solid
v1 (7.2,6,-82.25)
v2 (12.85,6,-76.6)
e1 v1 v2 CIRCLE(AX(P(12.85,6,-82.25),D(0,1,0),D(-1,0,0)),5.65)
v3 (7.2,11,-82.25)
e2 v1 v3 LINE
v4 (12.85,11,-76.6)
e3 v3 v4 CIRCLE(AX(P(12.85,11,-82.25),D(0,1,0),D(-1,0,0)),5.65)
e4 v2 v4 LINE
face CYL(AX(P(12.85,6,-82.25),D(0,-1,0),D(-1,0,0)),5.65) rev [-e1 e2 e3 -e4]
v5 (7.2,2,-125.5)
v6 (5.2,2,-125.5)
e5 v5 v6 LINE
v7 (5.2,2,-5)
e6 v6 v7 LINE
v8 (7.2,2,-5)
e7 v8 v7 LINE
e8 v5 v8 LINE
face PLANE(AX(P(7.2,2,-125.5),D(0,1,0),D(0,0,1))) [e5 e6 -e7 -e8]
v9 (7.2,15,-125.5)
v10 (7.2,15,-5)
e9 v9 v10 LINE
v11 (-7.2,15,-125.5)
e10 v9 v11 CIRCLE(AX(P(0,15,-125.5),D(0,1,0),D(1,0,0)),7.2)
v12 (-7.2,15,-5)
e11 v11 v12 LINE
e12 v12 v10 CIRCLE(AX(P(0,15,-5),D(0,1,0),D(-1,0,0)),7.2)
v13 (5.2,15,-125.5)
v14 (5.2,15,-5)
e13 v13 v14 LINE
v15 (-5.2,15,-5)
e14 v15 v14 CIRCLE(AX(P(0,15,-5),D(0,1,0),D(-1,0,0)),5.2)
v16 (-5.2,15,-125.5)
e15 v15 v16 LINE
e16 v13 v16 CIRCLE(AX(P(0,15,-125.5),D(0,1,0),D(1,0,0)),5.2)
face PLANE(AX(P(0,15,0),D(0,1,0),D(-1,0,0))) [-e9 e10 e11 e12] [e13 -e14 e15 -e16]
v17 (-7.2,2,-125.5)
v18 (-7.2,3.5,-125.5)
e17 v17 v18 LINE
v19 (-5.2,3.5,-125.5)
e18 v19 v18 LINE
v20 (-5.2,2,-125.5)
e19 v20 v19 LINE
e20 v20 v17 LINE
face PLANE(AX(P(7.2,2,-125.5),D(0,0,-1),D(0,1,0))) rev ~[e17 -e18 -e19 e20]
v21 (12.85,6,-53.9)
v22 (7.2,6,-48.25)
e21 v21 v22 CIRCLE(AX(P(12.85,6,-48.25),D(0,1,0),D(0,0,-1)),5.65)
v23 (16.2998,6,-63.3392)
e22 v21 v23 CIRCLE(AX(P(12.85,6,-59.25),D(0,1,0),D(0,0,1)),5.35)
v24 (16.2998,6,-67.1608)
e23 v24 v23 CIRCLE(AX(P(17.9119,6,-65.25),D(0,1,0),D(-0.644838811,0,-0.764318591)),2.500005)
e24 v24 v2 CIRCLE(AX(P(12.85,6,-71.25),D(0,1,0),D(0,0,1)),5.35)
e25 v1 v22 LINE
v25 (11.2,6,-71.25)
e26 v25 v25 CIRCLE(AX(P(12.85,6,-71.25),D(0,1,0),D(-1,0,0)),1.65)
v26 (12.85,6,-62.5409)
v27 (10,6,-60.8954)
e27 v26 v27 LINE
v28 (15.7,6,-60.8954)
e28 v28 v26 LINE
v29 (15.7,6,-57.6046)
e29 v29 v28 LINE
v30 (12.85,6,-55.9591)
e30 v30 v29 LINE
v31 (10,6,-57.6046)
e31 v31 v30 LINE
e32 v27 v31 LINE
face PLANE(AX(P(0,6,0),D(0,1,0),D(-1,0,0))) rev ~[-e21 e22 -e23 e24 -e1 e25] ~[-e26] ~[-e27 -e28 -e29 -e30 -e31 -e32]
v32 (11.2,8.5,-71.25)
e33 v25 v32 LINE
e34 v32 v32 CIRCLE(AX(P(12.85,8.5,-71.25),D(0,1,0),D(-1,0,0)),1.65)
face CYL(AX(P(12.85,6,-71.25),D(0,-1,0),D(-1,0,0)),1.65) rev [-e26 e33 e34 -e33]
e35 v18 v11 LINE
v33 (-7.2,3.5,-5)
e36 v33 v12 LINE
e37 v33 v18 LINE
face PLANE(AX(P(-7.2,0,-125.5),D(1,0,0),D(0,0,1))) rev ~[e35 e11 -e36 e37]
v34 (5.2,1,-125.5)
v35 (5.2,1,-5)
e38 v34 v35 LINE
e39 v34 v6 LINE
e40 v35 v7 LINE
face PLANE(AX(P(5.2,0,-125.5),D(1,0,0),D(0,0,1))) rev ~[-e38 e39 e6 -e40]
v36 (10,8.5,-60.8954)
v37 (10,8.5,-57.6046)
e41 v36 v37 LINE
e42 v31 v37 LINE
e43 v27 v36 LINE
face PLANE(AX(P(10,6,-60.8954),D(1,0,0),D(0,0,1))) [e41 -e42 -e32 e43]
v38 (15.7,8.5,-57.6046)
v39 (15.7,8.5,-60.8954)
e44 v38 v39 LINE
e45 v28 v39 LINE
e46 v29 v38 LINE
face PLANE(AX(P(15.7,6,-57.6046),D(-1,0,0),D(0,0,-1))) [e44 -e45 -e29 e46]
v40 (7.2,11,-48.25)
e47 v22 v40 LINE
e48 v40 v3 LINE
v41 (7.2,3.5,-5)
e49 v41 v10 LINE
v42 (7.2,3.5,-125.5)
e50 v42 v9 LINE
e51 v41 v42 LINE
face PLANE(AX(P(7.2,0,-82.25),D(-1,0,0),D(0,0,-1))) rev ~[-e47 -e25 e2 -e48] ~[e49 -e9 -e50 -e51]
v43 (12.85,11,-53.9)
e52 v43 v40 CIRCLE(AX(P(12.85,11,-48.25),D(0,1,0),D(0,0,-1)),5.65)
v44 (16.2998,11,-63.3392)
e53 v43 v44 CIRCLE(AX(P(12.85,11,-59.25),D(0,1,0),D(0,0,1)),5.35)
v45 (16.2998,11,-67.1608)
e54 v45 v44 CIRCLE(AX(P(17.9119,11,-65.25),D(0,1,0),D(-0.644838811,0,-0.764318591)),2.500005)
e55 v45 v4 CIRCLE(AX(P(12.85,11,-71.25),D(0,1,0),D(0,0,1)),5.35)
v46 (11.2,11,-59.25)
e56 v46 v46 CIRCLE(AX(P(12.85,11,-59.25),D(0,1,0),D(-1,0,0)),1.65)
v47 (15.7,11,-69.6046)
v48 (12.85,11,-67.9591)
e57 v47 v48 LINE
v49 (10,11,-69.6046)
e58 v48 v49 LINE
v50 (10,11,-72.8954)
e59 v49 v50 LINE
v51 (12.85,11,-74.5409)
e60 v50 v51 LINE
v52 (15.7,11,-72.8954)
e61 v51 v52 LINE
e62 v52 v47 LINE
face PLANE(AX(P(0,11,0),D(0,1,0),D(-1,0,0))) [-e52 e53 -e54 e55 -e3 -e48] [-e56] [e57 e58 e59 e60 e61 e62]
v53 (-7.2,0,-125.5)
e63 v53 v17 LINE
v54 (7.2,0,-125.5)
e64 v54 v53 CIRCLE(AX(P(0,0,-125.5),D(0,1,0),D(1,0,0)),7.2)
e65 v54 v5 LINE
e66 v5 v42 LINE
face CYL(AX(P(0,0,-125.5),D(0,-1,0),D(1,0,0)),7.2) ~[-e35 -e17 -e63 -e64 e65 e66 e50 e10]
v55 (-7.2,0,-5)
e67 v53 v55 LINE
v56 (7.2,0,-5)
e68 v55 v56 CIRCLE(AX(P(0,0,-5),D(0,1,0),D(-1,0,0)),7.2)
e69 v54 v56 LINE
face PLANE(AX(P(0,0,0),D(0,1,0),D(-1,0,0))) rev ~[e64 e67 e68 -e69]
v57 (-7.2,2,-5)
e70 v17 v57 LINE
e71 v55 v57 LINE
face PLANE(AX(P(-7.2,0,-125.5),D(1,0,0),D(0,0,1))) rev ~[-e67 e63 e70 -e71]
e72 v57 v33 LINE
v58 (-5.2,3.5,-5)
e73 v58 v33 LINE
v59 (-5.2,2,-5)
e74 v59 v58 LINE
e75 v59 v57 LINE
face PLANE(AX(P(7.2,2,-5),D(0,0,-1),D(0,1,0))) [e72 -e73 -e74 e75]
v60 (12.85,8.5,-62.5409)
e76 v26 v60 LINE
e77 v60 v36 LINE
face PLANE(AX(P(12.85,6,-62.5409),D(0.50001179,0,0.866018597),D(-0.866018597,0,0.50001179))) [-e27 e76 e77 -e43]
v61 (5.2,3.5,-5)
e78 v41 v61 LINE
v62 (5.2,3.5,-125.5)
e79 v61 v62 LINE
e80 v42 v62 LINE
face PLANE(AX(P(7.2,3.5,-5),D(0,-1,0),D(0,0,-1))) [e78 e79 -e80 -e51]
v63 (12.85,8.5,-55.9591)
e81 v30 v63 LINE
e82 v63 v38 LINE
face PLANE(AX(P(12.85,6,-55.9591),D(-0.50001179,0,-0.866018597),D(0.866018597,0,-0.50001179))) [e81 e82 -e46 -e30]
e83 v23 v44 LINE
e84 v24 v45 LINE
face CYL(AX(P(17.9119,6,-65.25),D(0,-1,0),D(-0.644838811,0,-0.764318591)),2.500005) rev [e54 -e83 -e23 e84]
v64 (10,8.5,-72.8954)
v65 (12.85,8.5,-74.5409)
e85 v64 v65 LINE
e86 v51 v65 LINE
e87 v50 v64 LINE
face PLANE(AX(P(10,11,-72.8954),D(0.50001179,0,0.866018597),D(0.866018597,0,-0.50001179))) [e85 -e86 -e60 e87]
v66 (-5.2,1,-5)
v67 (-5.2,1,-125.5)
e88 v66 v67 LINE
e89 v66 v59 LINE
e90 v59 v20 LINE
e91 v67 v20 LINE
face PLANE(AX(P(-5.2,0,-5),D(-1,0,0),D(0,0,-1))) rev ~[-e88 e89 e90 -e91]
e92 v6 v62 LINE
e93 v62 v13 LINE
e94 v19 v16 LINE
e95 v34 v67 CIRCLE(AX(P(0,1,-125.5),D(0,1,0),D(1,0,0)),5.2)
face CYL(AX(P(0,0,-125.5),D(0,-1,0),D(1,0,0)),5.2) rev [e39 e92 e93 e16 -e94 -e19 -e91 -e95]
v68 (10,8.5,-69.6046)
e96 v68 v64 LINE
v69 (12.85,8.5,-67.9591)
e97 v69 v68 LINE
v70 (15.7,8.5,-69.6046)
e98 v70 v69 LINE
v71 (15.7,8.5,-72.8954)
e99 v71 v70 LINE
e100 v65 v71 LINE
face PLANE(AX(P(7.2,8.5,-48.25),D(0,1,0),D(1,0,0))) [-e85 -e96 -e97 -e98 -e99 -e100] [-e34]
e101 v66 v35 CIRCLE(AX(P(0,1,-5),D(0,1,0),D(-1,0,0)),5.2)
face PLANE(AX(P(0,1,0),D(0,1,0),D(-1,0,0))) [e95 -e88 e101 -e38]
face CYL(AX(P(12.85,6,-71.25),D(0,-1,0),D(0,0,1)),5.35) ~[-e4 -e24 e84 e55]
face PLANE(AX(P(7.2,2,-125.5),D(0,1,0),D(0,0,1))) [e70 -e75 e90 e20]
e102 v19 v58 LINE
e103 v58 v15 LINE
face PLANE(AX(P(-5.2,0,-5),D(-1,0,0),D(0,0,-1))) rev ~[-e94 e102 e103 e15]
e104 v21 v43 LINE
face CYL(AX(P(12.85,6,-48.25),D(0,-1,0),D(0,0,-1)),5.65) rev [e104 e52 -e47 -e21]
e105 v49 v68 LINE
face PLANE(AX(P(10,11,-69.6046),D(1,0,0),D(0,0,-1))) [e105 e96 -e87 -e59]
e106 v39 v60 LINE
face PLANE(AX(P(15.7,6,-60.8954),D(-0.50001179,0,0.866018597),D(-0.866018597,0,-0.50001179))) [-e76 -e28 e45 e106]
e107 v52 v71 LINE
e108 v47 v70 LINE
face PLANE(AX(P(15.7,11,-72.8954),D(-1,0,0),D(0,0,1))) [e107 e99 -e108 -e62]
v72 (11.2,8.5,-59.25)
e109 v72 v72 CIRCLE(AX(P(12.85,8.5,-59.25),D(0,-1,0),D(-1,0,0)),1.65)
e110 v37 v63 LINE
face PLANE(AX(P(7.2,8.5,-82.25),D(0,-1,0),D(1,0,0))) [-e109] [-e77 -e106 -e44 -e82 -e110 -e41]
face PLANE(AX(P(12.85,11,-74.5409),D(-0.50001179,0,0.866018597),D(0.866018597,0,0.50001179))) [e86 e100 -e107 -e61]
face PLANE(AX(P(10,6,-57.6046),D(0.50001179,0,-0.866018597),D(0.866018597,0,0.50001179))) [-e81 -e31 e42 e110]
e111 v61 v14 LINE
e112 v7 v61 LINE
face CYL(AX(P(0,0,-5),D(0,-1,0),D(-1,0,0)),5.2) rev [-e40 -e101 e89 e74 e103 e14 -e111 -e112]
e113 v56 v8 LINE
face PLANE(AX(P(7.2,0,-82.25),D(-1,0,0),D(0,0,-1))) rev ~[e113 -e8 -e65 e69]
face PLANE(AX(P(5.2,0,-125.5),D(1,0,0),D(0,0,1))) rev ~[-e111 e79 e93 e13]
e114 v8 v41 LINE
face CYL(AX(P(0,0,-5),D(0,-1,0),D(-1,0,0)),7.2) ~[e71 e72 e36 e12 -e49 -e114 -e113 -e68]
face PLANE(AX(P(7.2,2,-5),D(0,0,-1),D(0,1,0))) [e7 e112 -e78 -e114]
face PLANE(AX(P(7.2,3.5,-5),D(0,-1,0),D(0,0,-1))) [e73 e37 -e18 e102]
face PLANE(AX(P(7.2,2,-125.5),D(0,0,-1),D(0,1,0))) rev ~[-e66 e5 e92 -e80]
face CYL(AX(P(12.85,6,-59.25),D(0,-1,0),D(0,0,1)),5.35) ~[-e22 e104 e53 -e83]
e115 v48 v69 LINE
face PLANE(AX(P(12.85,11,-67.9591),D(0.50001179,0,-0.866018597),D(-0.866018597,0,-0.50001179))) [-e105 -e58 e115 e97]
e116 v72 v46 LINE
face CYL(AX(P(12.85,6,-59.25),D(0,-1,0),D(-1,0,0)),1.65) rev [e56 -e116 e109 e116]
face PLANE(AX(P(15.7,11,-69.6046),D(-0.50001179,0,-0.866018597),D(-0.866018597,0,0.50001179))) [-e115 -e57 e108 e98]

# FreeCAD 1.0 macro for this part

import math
import FreeCAD as App
import Part
import Sketcher
from FreeCAD import Vector
Q = App.Units.Quantity

doc = App.newDocument("Part")
body = doc.addObject("PartDesign::Body", "Body")

sketch1 = doc.addObject("Sketcher::SketchObject", "Sketch")
body.addObject(sketch1)
sketch1.AttachmentSupport = (doc.XZ_Plane, [""])
sketch1.MapMode = "FlatFace"
sketch1.addGeometry(Part.LineSegment(Vector(5.2, -5, 0), Vector(5.2, -125.5, 0)), False)
sketch1.addGeometry(Part.ArcOfCircle(Part.Circle(Vector(0, -125.5, 0), Vector(0, 0, 1), 5.2), math.radians(180), math.radians(360)), False)
sketch1.addGeometry(Part.LineSegment(Vector(-5.2, -125.5, 0), Vector(-5.2, -5, 0)), False)
sketch1.addGeometry(Part.ArcOfCircle(Part.Circle(Vector(0, -5, 0), Vector(0, 0, 1), 5.2), math.radians(0), math.radians(180)), False)
sketch1.addConstraint(Sketcher.Constraint("Tangent", 0, 2, 1, 2))
sketch1.addConstraint(Sketcher.Constraint("Tangent", 1, 1, 2, 1))
sketch1.addConstraint(Sketcher.Constraint("Tangent", 2, 2, 3, 2))
sketch1.addConstraint(Sketcher.Constraint("Tangent", 3, 1, 0, 1))
sketch1.addConstraint(Sketcher.Constraint("Vertical", 0))
sketch1.addConstraint(Sketcher.Constraint("Vertical", 2))
sketch1.addConstraint(Sketcher.Constraint("PointOnObject", 1, 3, -2))
sketch1.addConstraint(Sketcher.Constraint("Radius", 1, 5.2))
sketch1.addConstraint(Sketcher.Constraint("DistanceY", 0, 2, 0, 1, 120.5))
sketch1.addConstraint(Sketcher.Constraint("DistanceY", 3, 3, -1, 1, 5.0))
pad1 = doc.addObject("PartDesign::Pad", "Pad")
body.addObject(pad1)
pad1.Profile = sketch1
pad1.Length = 1
pad1.Reversed = True

sketch2 = doc.addObject("Sketcher::SketchObject", "Sketch001")
body.addObject(sketch2)
sketch2.AttachmentSupport = (doc.XZ_Plane, [""])
sketch2.MapMode = "FlatFace"
sketch2.addGeometry(Part.ArcOfCircle(Part.Circle(Vector(0, -125.5, 0), Vector(0, 0, 1), 7.2), math.radians(180), math.radians(360)), False)
sketch2.addGeometry(Part.LineSegment(Vector(-7.2, -125.5, 0), Vector(-7.2, -5, 0)), False)
sketch2.addGeometry(Part.ArcOfCircle(Part.Circle(Vector(0, -5, 0), Vector(0, 0, 1), 7.2), math.radians(0), math.radians(180)), False)
sketch2.addGeometry(Part.LineSegment(Vector(7.2, -5, 0), Vector(7.2, -125.5, 0)), False)
sketch2.addGeometry(Part.ArcOfCircle(Part.Circle(Vector(0, -125.5, 0), Vector(0, 0, 1), 5.2), math.radians(180), math.radians(360)), False)
sketch2.addGeometry(Part.LineSegment(Vector(5.2, -125.5, 0), Vector(5.2, -5, 0)), False)
sketch2.addGeometry(Part.ArcOfCircle(Part.Circle(Vector(0, -5, 0), Vector(0, 0, 1), 5.2), math.radians(0), math.radians(180)), False)
sketch2.addGeometry(Part.LineSegment(Vector(-5.2, -5, 0), Vector(-5.2, -125.5, 0)), False)
sketch2.addConstraint(Sketcher.Constraint("Tangent", 0, 1, 1, 1))
sketch2.addConstraint(Sketcher.Constraint("Tangent", 1, 2, 2, 2))
sketch2.addConstraint(Sketcher.Constraint("Tangent", 2, 1, 3, 1))
sketch2.addConstraint(Sketcher.Constraint("Tangent", 3, 2, 0, 2))
sketch2.addConstraint(Sketcher.Constraint("Tangent", 4, 2, 5, 1))
sketch2.addConstraint(Sketcher.Constraint("Tangent", 5, 2, 6, 1))
sketch2.addConstraint(Sketcher.Constraint("Tangent", 6, 2, 7, 1))
sketch2.addConstraint(Sketcher.Constraint("Tangent", 7, 2, 4, 1))
sketch2.addConstraint(Sketcher.Constraint("Vertical", 1))
sketch2.addConstraint(Sketcher.Constraint("Vertical", 3))
sketch2.addConstraint(Sketcher.Constraint("Vertical", 5))
sketch2.addConstraint(Sketcher.Constraint("Vertical", 7))
sketch2.addConstraint(Sketcher.Constraint("Coincident", 4, 3, 0, 3))
sketch2.addConstraint(Sketcher.Constraint("PointOnObject", 0, 3, -2))
sketch2.addConstraint(Sketcher.Constraint("Horizontal", 6, 3, 1, 2))
sketch2.addConstraint(Sketcher.Constraint("DistanceX", 4, 2, 3, 2, 2.0))
sketch2.addConstraint(Sketcher.Constraint("Radius", 0, 7.2))
sketch2.addConstraint(Sketcher.Constraint("DistanceY", 1, 1, 1, 2, 120.5))
sketch2.addConstraint(Sketcher.Constraint("DistanceY", 2, 3, -1, 1, 5.0))
pad2 = doc.addObject("PartDesign::Pad", "Pad001")
body.addObject(pad2)
pad2.Profile = sketch2
pad2.Length = 15
pad2.Reversed = True

sketch3 = doc.addObject("Sketcher::SketchObject", "Sketch002")
body.addObject(sketch3)
sketch3.AttachmentSupport = (doc.XZ_Plane, [""])
sketch3.MapMode = "FlatFace"
sketch3.AttachmentOffset = App.Placement(Vector(0, 0, -6), App.Rotation())
sketch3.addGeometry(Part.ArcOfCircle(Part.Circle(Vector(12.85, -82.25, 0), Vector(0, 0, 1), 5.65), math.radians(90), math.radians(180)), False)
sketch3.addGeometry(Part.LineSegment(Vector(7.2, -82.25, 0), Vector(7.2, -48.25, 0)), False)
sketch3.addGeometry(Part.ArcOfCircle(Part.Circle(Vector(12.85, -48.25, 0), Vector(0, 0, 1), 5.65), math.radians(180), math.radians(270)), False)
sketch3.addGeometry(Part.ArcOfCircle(Part.Circle(Vector(12.85, -59.25, 0), Vector(0, 0, 1), 5.35), math.radians(-49.847786), math.radians(90)), False)
sketch3.addGeometry(Part.ArcOfCircle(Part.Circle(Vector(17.9119, -65.25, 0), Vector(0, 0, 1), 2.500005), math.radians(130.153591), math.radians(229.846409)), False)
sketch3.addGeometry(Part.ArcOfCircle(Part.Circle(Vector(12.85, -71.25, 0), Vector(0, 0, 1), 5.35), math.radians(-90), math.radians(49.847786)), False)
sketch3.addGeometry(Part.Circle(Vector(12.85, -71.25, 0), Vector(0, 0, 1), 1.65), False)
sketch3.addGeometry(Part.Circle(Vector(12.85, -59.25, 0), Vector(0, 0, 1), 1.65), False)
sketch3.addConstraint(Sketcher.Constraint("Tangent", 0, 2, 1, 1))
sketch3.addConstraint(Sketcher.Constraint("Tangent", 1, 2, 2, 1))
sketch3.addConstraint(Sketcher.Constraint("Tangent", 2, 2, 3, 2))
sketch3.addConstraint(Sketcher.Constraint("Tangent", 3, 1, 4, 1))
sketch3.addConstraint(Sketcher.Constraint("Tangent", 4, 2, 5, 2))
sketch3.addConstraint(Sketcher.Constraint("Tangent", 5, 1, 0, 1))
sketch3.addConstraint(Sketcher.Constraint("Vertical", 1))
sketch3.addConstraint(Sketcher.Constraint("Coincident", 6, 3, 5, 3))
sketch3.addConstraint(Sketcher.Constraint("Coincident", 7, 3, 3, 3))
sketch3.addConstraint(Sketcher.Constraint("Equal", 0, 2))
sketch3.addConstraint(Sketcher.Constraint("Equal", 3, 5))
sketch3.addConstraint(Sketcher.Constraint("Equal", 6, 7))
sketch3.addConstraint(Sketcher.Constraint("Vertical", 2, 3, 3, 3))
sketch3.addConstraint(Sketcher.Constraint("Vertical", 3, 3, 5, 3))
sketch3.addConstraint(Sketcher.Constraint("Diameter", 6, 3.3))
sketch3.addConstraint(Sketcher.Constraint("Radius", 4, 2.5))
sketch3.addConstraint(Sketcher.Constraint("DistanceY", 4, 3, 3, 3, 6.0))
sketch3.addConstraint(Sketcher.Constraint("DistanceY", 1, 1, 1, 2, 34.0))
sketch3.addConstraint(Sketcher.Constraint("Radius", 0, 5.65))
sketch3.addConstraint(Sketcher.Constraint("DistanceX", -1, 1, 0, 2, 7.2))
sketch3.addConstraint(Sketcher.Constraint("DistanceY", 2, 2, -1, 1, 53.9))
pad3 = doc.addObject("PartDesign::Pad", "Pad002")
body.addObject(pad3)
pad3.Profile = sketch3
pad3.Length = 5
pad3.Reversed = True

sketch4 = doc.addObject("Sketcher::SketchObject", "Sketch003")
body.addObject(sketch4)
sketch4.AttachmentSupport = (doc.YZ_Plane, [""])
sketch4.MapMode = "FlatFace"
sketch4.AttachmentOffset = App.Placement(Vector(0, 0, 7.2), App.Rotation())
sketch4.addGeometry(Part.LineSegment(Vector(3.5, -5, 0), Vector(2, -5, 0)), False)
sketch4.addGeometry(Part.LineSegment(Vector(2, -5, 0), Vector(2, -125.5, 0)), False)
sketch4.addGeometry(Part.LineSegment(Vector(2, -125.5, 0), Vector(3.5, -125.5, 0)), False)
sketch4.addGeometry(Part.LineSegment(Vector(3.5, -125.5, 0), Vector(3.5, -5, 0)), False)
sketch4.addConstraint(Sketcher.Constraint("Coincident", 0, 2, 1, 1))
sketch4.addConstraint(Sketcher.Constraint("Coincident", 1, 2, 2, 1))
sketch4.addConstraint(Sketcher.Constraint("Coincident", 2, 2, 3, 1))
sketch4.addConstraint(Sketcher.Constraint("Coincident", 3, 2, 0, 1))
sketch4.addConstraint(Sketcher.Constraint("Horizontal", 0))
sketch4.addConstraint(Sketcher.Constraint("Vertical", 1))
sketch4.addConstraint(Sketcher.Constraint("Horizontal", 2))
sketch4.addConstraint(Sketcher.Constraint("Vertical", 3))
sketch4.addConstraint(Sketcher.Constraint("DistanceX", 0, 2, 0, 1, 1.5))
sketch4.addConstraint(Sketcher.Constraint("DistanceX", -1, 1, 0, 2, 2.0))
sketch4.addConstraint(Sketcher.Constraint("DistanceY", 1, 2, 1, 1, 120.5))
sketch4.addConstraint(Sketcher.Constraint("DistanceY", 0, 2, -1, 1, 5.0))
pocket1 = doc.addObject("PartDesign::Pocket", "Pocket")
body.addObject(pocket1)
pocket1.Profile = sketch4
pocket1.Type = "ThroughAll"

sketch5 = doc.addObject("Sketcher::SketchObject", "Sketch004")
body.addObject(sketch5)
sketch5.AttachmentSupport = (doc.XZ_Plane, [""])
sketch5.MapMode = "FlatFace"
sketch5.AttachmentOffset = App.Placement(Vector(0, 0, -11), App.Rotation())
sketch5.addGeometry(Part.LineSegment(Vector(15.7, -69.6046, 0), Vector(15.7, -72.8954, 0)), False)
sketch5.addGeometry(Part.LineSegment(Vector(15.7, -72.8954, 0), Vector(12.85, -74.5409, 0)), False)
sketch5.addGeometry(Part.LineSegment(Vector(12.85, -74.5409, 0), Vector(10, -72.8954, 0)), False)
sketch5.addGeometry(Part.LineSegment(Vector(10, -72.8954, 0), Vector(10, -69.6046, 0)), False)
sketch5.addGeometry(Part.LineSegment(Vector(10, -69.6046, 0), Vector(12.85, -67.9591, 0)), False)
sketch5.addGeometry(Part.LineSegment(Vector(12.85, -67.9591, 0), Vector(15.7, -69.6046, 0)), False)
sketch5.addGeometry(Part.Circle(Vector(12.85, -71.25, 0), Vector(0, 0, 1), 1.65), False)
sketch5.addConstraint(Sketcher.Constraint("Coincident", 0, 2, 1, 1))
sketch5.addConstraint(Sketcher.Constraint("Coincident", 1, 2, 2, 1))
sketch5.addConstraint(Sketcher.Constraint("Coincident", 2, 2, 3, 1))
sketch5.addConstraint(Sketcher.Constraint("Coincident", 3, 2, 4, 1))
sketch5.addConstraint(Sketcher.Constraint("Coincident", 4, 2, 5, 1))
sketch5.addConstraint(Sketcher.Constraint("Coincident", 5, 2, 0, 1))
sketch5.addConstraint(Sketcher.Constraint("Vertical", 0))
sketch5.addConstraint(Sketcher.Constraint("Vertical", 3))
sketch5.addConstraint(Sketcher.Constraint("Parallel", 1, 4))
sketch5.addConstraint(Sketcher.Constraint("Parallel", 2, 5))
sketch5.addConstraint(Sketcher.Constraint("Horizontal", 0, 2, 2, 2))
sketch5.addConstraint(Sketcher.Constraint("Horizontal", 3, 2, 5, 2))
sketch5.addConstraint(Sketcher.Constraint("Vertical", 6, 3, 1, 2))
sketch5.addConstraint(Sketcher.Constraint("Vertical", 1, 2, 4, 2))
sketch5.addConstraint(Sketcher.Constraint("Diameter", 6, 3.3))
sketch5.addConstraint(Sketcher.Constraint("DistanceX", 2, 2, 0, 2, 5.7))
sketch5.addConstraint(Sketcher.Constraint("Angle", 1, Q("-149.9992 deg")))
sketch5.addConstraint(Sketcher.Constraint("DistanceX", -1, 1, 2, 2, 10.0))
sketch5.addConstraint(Sketcher.Constraint("DistanceY", 6, 3, -1, 1, 71.25))
sketch5.addConstraint(Sketcher.Constraint("DistanceY", 0, 2, 0, 1, 3.2908))
sketch5.addConstraint(Sketcher.Constraint("DistanceY", 1, 2, -1, 1, 74.541))
pocket2 = doc.addObject("PartDesign::Pocket", "Pocket001")
body.addObject(pocket2)
pocket2.Profile = sketch5
pocket2.Length = 2.5
pocket2.Reversed = True

sketch6 = doc.addObject("Sketcher::SketchObject", "Sketch005")
body.addObject(sketch6)
sketch6.AttachmentSupport = (doc.XZ_Plane, [""])
sketch6.MapMode = "FlatFace"
sketch6.AttachmentOffset = App.Placement(Vector(0, 0, -6), App.Rotation())
sketch6.addGeometry(Part.LineSegment(Vector(15.7, -57.6046, 0), Vector(12.85, -55.9591, 0)), False)
sketch6.addGeometry(Part.LineSegment(Vector(12.85, -55.9591, 0), Vector(10, -57.6046, 0)), False)
sketch6.addGeometry(Part.LineSegment(Vector(10, -57.6046, 0), Vector(10, -60.8954, 0)), False)
sketch6.addGeometry(Part.LineSegment(Vector(10, -60.8954, 0), Vector(12.85, -62.5409, 0)), False)
sketch6.addGeometry(Part.LineSegment(Vector(12.85, -62.5409, 0), Vector(15.7, -60.8954, 0)), False)
sketch6.addGeometry(Part.LineSegment(Vector(15.7, -60.8954, 0), Vector(15.7, -57.6046, 0)), False)
sketch6.addGeometry(Part.Circle(Vector(12.85, -59.25, 0), Vector(0, 0, 1), 1.65), False)
sketch6.addConstraint(Sketcher.Constraint("Coincident", 0, 2, 1, 1))
sketch6.addConstraint(Sketcher.Constraint("Coincident", 1, 2, 2, 1))
sketch6.addConstraint(Sketcher.Constraint("Coincident", 2, 2, 3, 1))
sketch6.addConstraint(Sketcher.Constraint("Coincident", 3, 2, 4, 1))
sketch6.addConstraint(Sketcher.Constraint("Coincident", 4, 2, 5, 1))
sketch6.addConstraint(Sketcher.Constraint("Coincident", 5, 2, 0, 1))
sketch6.addConstraint(Sketcher.Constraint("Vertical", 2))
sketch6.addConstraint(Sketcher.Constraint("Vertical", 5))
sketch6.addConstraint(Sketcher.Constraint("Parallel", 0, 3))
sketch6.addConstraint(Sketcher.Constraint("Parallel", 1, 4))
sketch6.addConstraint(Sketcher.Constraint("Horizontal", 2, 2, 4, 2))
sketch6.addConstraint(Sketcher.Constraint("Horizontal", 1, 2, 5, 2))
sketch6.addConstraint(Sketcher.Constraint("Vertical", 6, 3, 0, 2))
sketch6.addConstraint(Sketcher.Constraint("Vertical", 0, 2, 3, 2))
sketch6.addConstraint(Sketcher.Constraint("Diameter", 6, 3.3))
sketch6.addConstraint(Sketcher.Constraint("DistanceX", 2, 2, 4, 2, 5.7))
sketch6.addConstraint(Sketcher.Constraint("Angle", 0, Q("149.9992 deg")))
sketch6.addConstraint(Sketcher.Constraint("DistanceX", -1, 1, 1, 2, 10.0))
sketch6.addConstraint(Sketcher.Constraint("DistanceY", 6, 3, -1, 1, 59.25))
sketch6.addConstraint(Sketcher.Constraint("DistanceY", 2, 2, 2, 1, 3.2908))
sketch6.addConstraint(Sketcher.Constraint("DistanceY", 0, 2, -1, 1, 55.959))
pocket3 = doc.addObject("PartDesign::Pocket", "Pocket002")
body.addObject(pocket3)
pocket3.Profile = sketch6
pocket3.Length = 2.5

doc.recompute()
